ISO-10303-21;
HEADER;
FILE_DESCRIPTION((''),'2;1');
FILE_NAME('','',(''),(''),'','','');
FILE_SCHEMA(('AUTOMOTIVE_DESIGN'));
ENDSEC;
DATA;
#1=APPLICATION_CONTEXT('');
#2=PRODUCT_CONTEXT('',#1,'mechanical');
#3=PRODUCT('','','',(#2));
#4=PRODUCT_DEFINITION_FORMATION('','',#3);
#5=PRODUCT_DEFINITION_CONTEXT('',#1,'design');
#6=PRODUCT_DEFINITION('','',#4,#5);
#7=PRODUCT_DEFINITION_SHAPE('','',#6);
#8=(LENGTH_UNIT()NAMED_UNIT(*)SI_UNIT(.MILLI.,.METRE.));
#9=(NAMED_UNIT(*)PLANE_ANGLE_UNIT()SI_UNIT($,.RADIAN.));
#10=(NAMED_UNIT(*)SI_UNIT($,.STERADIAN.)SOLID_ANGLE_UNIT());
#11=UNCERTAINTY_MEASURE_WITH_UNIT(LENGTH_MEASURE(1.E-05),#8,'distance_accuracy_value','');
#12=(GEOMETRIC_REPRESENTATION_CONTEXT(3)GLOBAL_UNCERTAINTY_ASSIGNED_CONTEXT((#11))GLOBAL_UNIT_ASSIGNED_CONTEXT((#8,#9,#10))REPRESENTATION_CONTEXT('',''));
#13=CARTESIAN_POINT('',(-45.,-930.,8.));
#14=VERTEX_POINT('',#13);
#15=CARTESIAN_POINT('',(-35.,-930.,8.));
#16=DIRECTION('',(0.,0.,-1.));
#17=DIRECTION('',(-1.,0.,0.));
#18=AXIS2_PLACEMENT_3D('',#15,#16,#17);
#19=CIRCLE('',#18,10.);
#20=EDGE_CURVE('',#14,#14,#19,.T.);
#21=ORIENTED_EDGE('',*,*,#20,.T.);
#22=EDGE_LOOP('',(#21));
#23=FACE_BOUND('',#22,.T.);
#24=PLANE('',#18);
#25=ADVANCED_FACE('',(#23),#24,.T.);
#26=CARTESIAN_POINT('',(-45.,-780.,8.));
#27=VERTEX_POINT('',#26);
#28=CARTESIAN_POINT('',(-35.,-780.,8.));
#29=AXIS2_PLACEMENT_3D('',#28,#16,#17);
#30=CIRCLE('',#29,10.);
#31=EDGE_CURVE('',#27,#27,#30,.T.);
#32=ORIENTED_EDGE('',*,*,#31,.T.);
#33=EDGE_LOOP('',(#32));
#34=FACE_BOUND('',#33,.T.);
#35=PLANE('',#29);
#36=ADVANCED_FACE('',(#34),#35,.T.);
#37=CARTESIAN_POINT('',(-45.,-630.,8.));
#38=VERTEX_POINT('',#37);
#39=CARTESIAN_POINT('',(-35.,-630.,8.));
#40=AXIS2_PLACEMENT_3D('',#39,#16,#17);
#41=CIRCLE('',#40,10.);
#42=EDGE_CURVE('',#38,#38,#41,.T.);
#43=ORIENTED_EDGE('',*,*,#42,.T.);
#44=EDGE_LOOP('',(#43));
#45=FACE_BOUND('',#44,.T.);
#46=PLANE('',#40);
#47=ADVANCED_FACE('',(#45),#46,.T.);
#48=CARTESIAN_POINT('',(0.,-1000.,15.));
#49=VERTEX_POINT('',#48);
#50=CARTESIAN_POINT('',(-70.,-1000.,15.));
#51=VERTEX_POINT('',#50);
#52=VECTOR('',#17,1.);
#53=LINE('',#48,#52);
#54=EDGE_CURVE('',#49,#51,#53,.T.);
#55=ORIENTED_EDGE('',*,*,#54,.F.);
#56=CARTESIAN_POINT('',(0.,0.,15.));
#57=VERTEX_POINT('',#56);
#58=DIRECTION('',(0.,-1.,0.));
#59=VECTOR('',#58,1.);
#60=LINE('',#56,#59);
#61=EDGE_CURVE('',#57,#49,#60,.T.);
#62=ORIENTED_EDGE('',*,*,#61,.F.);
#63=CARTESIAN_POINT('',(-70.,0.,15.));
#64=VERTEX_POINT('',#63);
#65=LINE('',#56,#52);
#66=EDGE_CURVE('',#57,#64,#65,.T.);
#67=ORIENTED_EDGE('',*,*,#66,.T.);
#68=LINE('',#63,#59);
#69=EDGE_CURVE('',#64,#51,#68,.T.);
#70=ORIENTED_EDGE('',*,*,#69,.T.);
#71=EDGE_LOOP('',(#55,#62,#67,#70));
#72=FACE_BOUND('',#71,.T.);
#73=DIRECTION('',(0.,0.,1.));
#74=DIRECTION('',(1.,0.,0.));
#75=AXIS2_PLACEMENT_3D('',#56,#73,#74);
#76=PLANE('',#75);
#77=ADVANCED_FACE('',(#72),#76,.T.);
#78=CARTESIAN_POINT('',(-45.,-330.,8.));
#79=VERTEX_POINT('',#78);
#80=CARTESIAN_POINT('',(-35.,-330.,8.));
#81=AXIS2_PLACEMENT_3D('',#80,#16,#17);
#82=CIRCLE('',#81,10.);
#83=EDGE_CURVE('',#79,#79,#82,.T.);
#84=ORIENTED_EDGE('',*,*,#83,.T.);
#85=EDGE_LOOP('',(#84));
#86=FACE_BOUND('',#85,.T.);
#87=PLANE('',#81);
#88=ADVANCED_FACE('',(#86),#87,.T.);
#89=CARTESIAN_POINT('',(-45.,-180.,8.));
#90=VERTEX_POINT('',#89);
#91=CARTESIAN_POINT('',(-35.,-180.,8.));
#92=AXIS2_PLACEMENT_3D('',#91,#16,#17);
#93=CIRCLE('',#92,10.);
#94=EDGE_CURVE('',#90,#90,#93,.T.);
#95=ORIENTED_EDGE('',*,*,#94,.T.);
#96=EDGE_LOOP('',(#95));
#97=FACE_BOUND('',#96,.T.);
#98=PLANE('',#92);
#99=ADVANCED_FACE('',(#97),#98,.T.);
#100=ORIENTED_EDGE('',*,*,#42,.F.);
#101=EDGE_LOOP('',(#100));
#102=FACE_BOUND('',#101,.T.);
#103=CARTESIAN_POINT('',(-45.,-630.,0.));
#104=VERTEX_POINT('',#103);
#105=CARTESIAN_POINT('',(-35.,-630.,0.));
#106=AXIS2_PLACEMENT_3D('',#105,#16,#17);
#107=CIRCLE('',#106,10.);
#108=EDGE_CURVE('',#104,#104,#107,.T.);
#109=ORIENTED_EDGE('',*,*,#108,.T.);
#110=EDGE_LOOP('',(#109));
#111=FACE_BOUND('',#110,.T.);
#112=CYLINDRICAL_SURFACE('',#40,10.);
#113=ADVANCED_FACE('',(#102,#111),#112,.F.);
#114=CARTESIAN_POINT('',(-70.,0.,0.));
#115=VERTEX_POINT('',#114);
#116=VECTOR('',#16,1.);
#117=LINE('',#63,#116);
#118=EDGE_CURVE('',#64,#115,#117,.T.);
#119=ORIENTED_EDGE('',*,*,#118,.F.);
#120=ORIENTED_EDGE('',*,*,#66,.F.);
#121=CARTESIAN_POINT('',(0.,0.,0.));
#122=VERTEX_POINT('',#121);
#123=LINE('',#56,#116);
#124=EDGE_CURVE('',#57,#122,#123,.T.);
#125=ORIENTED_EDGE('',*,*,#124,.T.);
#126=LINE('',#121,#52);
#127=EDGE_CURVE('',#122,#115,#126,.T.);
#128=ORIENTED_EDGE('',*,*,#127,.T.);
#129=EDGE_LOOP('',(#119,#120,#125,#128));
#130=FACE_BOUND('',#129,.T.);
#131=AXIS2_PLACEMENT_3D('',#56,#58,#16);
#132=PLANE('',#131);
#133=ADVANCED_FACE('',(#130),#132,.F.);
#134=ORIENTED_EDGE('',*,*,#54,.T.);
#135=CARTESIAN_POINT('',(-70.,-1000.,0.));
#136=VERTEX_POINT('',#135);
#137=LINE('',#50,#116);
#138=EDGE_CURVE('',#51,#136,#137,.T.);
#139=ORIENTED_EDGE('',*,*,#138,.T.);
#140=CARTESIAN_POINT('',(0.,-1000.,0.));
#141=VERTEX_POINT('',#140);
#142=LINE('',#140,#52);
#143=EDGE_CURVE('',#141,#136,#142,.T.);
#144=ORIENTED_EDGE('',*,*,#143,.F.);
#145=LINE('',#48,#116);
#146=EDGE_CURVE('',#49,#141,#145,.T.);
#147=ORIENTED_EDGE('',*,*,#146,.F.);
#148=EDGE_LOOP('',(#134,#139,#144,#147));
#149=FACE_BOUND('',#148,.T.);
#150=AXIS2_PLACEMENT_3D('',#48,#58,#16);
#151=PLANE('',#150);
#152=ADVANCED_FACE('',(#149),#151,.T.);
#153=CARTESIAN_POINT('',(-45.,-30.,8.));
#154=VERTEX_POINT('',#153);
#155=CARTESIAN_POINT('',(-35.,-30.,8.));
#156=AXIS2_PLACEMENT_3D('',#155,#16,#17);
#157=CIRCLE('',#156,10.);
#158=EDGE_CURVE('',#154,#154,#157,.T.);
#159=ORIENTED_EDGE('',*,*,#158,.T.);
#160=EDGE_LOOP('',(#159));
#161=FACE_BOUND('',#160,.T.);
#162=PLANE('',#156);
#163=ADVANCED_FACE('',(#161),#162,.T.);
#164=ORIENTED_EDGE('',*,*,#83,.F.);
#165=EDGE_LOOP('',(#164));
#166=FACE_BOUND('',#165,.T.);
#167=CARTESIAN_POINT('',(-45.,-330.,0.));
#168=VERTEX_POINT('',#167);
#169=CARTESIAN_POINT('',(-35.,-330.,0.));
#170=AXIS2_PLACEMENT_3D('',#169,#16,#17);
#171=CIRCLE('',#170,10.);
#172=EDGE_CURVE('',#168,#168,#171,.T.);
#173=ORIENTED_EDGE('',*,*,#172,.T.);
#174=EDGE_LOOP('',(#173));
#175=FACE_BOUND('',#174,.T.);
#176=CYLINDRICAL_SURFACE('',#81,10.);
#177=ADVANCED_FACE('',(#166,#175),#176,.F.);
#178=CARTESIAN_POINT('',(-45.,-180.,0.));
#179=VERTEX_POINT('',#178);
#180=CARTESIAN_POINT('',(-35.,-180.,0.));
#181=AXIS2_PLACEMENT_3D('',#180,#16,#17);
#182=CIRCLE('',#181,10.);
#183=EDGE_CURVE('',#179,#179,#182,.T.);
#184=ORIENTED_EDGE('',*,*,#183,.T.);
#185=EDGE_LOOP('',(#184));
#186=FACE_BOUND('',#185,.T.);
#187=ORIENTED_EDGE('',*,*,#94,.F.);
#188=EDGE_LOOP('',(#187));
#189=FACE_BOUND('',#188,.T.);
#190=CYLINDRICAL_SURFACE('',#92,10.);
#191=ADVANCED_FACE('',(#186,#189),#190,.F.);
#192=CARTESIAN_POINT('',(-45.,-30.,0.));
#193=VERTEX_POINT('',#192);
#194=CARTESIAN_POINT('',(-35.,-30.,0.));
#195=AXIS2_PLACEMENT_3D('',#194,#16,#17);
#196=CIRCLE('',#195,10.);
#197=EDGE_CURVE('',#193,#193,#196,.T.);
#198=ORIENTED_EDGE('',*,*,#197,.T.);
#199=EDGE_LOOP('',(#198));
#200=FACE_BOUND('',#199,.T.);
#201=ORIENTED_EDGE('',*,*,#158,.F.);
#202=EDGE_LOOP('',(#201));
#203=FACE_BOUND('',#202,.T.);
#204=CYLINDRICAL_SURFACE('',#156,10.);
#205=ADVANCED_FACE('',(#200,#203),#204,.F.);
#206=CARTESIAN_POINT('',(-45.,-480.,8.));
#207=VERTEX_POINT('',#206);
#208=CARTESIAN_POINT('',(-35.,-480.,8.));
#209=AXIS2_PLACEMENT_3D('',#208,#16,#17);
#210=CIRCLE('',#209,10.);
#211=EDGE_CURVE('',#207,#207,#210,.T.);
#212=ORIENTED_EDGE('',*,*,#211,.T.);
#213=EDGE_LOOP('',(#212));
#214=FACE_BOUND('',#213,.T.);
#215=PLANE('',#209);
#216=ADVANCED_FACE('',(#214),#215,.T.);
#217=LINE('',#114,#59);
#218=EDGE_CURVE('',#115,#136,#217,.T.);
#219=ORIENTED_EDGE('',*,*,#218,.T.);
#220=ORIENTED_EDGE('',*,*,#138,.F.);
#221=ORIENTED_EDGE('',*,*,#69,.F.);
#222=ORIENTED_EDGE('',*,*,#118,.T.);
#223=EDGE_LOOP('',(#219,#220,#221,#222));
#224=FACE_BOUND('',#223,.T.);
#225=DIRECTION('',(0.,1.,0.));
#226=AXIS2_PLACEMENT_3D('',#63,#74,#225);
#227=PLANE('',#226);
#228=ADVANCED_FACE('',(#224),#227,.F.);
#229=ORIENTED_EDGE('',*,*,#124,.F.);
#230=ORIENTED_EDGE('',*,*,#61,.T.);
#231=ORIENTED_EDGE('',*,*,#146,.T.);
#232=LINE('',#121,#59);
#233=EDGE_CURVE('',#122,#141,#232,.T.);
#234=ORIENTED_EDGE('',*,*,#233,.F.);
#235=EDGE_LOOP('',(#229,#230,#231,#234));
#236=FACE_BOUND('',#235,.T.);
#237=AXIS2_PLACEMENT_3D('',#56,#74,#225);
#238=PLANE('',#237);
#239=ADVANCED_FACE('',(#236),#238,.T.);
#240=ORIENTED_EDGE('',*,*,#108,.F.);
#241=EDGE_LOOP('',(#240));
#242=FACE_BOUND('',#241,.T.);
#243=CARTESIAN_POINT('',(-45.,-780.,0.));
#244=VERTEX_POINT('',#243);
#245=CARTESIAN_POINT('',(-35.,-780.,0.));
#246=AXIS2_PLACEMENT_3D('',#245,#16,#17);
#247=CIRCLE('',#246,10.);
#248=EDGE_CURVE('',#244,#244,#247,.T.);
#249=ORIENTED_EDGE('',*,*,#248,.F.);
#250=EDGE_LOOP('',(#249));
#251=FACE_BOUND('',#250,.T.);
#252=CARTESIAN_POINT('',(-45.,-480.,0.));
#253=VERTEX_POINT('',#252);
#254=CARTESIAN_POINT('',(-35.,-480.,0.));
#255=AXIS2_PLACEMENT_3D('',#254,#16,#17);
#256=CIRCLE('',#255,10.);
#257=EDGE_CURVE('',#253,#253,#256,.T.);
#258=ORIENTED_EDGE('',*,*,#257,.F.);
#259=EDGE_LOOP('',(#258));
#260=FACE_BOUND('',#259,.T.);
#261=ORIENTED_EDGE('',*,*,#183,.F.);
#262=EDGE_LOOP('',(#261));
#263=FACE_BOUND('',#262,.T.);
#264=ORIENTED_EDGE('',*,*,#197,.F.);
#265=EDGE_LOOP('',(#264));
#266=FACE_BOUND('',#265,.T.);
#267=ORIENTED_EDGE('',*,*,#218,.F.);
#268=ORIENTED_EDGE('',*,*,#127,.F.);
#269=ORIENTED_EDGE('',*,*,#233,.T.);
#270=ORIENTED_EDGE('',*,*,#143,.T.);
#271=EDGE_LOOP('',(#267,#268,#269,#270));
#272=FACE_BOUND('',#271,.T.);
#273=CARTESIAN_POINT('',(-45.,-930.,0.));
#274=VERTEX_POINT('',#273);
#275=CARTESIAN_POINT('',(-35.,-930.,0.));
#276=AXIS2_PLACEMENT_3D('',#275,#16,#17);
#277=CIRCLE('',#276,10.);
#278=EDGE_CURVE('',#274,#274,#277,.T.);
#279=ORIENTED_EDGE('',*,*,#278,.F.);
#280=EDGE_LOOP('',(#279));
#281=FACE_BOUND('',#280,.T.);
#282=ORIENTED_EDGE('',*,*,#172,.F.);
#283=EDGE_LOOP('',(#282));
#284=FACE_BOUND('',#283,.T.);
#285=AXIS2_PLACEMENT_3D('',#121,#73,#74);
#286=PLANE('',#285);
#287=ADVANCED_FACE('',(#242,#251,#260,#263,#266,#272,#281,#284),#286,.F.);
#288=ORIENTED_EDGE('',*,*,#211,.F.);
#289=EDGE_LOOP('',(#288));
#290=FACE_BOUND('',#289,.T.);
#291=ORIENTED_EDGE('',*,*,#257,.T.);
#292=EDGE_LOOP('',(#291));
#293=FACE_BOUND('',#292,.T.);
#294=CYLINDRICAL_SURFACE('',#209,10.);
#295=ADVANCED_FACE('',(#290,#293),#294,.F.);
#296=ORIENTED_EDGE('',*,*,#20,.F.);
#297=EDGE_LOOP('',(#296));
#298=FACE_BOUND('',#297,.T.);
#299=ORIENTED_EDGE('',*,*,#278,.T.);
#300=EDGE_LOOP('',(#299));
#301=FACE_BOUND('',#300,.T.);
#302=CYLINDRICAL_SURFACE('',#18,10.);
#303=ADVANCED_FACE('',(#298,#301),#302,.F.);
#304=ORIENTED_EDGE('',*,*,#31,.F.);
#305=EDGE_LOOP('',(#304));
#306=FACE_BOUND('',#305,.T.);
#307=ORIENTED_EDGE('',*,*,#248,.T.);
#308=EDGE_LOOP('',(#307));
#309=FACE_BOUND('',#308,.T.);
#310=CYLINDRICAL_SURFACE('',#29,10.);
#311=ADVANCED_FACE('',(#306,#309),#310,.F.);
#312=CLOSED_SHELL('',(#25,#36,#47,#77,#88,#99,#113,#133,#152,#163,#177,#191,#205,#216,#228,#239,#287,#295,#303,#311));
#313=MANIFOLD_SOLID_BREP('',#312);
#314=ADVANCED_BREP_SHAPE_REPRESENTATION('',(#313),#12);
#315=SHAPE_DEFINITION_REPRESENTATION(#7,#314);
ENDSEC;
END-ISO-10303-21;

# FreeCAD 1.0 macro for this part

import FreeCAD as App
import Part
import Sketcher

V = App.Vector


def add_polygon(sketch, points):
    """Adds a closed chain of lines whose ends are joined by coincident constraints."""
    first, n = sketch.GeometryCount, len(points)
    for a, b in zip(points, points[1:] + points[:1]):
        sketch.addGeometry(Part.LineSegment(App.Vector(*a, 0), App.Vector(*b, 0)), False)
    for i in range(n):
        sketch.addConstraint(Sketcher.Constraint("Coincident", first + i, 2, first + (i + 1) % n, 1))

doc = App.newDocument("Part")
body = doc.addObject("PartDesign::Body", "Body")

# Sketch on XY plane
sketch1 = body.newObject("Sketcher::SketchObject", "Sketch")
sketch1.AttachmentSupport = (doc.getObject("XY_Plane"), [""])
sketch1.MapMode = "FlatFace"
add_polygon(sketch1, [(-70, 0), (-70, -1000), (0, -1000), (0, 0)])  # lines 0-3
sketch1.addConstraint([
    Sketcher.Constraint("Vertical", 0),
    Sketcher.Constraint("Horizontal", 1),
    Sketcher.Constraint("Vertical", 2),
    Sketcher.Constraint("Horizontal", 3),
    Sketcher.Constraint("Coincident", 2, 2, -1, 1),
    Sketcher.Constraint("DistanceX", 1, 1, 1, 2, 70.0),
    Sketcher.Constraint("DistanceY", 0, 2, 0, 1, 1000.0),
])
pad1 = body.newObject("PartDesign::Pad", "Pad")
pad1.Profile = sketch1
pad1.Length = 15

# Sketch on XY plane
sketch2 = body.newObject("Sketcher::SketchObject", "Sketch001")
sketch2.AttachmentSupport = (doc.getObject("XY_Plane"), [""])
sketch2.MapMode = "FlatFace"
sketch2.addGeometry([
    Part.Circle(V(-35, -30, 0), V(0, 0, 1), 10),  # 0
    Part.Circle(V(-35, -180, 0), V(0, 0, 1), 10),  # 1
    Part.Circle(V(-35, -330, 0), V(0, 0, 1), 10),  # 2
    Part.Circle(V(-35, -480, 0), V(0, 0, 1), 10),  # 3
    Part.Circle(V(-35, -630, 0), V(0, 0, 1), 10),  # 4
    Part.Circle(V(-35, -780, 0), V(0, 0, 1), 10),  # 5
    Part.Circle(V(-35, -930, 0), V(0, 0, 1), 10),  # 6
], False)
sketch2.addConstraint([
    Sketcher.Constraint("Equal", 0, 1),
    Sketcher.Constraint("Equal", 1, 2),
    Sketcher.Constraint("Equal", 2, 3),
    Sketcher.Constraint("Equal", 3, 4),
    Sketcher.Constraint("Equal", 4, 5),
    Sketcher.Constraint("Equal", 5, 6),
    Sketcher.Constraint("Vertical", 0, 3, 1, 3),
    Sketcher.Constraint("Vertical", 1, 3, 2, 3),
    Sketcher.Constraint("Vertical", 2, 3, 3, 3),
    Sketcher.Constraint("Vertical", 3, 3, 4, 3),
    Sketcher.Constraint("Vertical", 4, 3, 5, 3),
    Sketcher.Constraint("Vertical", 5, 3, 6, 3),
    Sketcher.Constraint("Diameter", 0, 20.0),
    Sketcher.Constraint("DistanceX", 0, 3, -1, 1, 35.0),
    Sketcher.Constraint("DistanceY", 0, 3, -1, 1, 30.0),
    Sketcher.Constraint("DistanceY", 1, 3, -1, 1, 180.0),
    Sketcher.Constraint("DistanceY", 2, 3, -1, 1, 330.0),
    Sketcher.Constraint("DistanceY", 3, 3, -1, 1, 480.0),
    Sketcher.Constraint("DistanceY", 4, 3, -1, 1, 630.0),
    Sketcher.Constraint("DistanceY", 5, 3, -1, 1, 780.0),
    Sketcher.Constraint("DistanceY", 6, 3, -1, 1, 930.0),
])
pocket1 = body.newObject("PartDesign::Pocket", "Pocket")
pocket1.Profile = sketch2
pocket1.Length = 8
pocket1.Reversed = True

doc.recompute()
